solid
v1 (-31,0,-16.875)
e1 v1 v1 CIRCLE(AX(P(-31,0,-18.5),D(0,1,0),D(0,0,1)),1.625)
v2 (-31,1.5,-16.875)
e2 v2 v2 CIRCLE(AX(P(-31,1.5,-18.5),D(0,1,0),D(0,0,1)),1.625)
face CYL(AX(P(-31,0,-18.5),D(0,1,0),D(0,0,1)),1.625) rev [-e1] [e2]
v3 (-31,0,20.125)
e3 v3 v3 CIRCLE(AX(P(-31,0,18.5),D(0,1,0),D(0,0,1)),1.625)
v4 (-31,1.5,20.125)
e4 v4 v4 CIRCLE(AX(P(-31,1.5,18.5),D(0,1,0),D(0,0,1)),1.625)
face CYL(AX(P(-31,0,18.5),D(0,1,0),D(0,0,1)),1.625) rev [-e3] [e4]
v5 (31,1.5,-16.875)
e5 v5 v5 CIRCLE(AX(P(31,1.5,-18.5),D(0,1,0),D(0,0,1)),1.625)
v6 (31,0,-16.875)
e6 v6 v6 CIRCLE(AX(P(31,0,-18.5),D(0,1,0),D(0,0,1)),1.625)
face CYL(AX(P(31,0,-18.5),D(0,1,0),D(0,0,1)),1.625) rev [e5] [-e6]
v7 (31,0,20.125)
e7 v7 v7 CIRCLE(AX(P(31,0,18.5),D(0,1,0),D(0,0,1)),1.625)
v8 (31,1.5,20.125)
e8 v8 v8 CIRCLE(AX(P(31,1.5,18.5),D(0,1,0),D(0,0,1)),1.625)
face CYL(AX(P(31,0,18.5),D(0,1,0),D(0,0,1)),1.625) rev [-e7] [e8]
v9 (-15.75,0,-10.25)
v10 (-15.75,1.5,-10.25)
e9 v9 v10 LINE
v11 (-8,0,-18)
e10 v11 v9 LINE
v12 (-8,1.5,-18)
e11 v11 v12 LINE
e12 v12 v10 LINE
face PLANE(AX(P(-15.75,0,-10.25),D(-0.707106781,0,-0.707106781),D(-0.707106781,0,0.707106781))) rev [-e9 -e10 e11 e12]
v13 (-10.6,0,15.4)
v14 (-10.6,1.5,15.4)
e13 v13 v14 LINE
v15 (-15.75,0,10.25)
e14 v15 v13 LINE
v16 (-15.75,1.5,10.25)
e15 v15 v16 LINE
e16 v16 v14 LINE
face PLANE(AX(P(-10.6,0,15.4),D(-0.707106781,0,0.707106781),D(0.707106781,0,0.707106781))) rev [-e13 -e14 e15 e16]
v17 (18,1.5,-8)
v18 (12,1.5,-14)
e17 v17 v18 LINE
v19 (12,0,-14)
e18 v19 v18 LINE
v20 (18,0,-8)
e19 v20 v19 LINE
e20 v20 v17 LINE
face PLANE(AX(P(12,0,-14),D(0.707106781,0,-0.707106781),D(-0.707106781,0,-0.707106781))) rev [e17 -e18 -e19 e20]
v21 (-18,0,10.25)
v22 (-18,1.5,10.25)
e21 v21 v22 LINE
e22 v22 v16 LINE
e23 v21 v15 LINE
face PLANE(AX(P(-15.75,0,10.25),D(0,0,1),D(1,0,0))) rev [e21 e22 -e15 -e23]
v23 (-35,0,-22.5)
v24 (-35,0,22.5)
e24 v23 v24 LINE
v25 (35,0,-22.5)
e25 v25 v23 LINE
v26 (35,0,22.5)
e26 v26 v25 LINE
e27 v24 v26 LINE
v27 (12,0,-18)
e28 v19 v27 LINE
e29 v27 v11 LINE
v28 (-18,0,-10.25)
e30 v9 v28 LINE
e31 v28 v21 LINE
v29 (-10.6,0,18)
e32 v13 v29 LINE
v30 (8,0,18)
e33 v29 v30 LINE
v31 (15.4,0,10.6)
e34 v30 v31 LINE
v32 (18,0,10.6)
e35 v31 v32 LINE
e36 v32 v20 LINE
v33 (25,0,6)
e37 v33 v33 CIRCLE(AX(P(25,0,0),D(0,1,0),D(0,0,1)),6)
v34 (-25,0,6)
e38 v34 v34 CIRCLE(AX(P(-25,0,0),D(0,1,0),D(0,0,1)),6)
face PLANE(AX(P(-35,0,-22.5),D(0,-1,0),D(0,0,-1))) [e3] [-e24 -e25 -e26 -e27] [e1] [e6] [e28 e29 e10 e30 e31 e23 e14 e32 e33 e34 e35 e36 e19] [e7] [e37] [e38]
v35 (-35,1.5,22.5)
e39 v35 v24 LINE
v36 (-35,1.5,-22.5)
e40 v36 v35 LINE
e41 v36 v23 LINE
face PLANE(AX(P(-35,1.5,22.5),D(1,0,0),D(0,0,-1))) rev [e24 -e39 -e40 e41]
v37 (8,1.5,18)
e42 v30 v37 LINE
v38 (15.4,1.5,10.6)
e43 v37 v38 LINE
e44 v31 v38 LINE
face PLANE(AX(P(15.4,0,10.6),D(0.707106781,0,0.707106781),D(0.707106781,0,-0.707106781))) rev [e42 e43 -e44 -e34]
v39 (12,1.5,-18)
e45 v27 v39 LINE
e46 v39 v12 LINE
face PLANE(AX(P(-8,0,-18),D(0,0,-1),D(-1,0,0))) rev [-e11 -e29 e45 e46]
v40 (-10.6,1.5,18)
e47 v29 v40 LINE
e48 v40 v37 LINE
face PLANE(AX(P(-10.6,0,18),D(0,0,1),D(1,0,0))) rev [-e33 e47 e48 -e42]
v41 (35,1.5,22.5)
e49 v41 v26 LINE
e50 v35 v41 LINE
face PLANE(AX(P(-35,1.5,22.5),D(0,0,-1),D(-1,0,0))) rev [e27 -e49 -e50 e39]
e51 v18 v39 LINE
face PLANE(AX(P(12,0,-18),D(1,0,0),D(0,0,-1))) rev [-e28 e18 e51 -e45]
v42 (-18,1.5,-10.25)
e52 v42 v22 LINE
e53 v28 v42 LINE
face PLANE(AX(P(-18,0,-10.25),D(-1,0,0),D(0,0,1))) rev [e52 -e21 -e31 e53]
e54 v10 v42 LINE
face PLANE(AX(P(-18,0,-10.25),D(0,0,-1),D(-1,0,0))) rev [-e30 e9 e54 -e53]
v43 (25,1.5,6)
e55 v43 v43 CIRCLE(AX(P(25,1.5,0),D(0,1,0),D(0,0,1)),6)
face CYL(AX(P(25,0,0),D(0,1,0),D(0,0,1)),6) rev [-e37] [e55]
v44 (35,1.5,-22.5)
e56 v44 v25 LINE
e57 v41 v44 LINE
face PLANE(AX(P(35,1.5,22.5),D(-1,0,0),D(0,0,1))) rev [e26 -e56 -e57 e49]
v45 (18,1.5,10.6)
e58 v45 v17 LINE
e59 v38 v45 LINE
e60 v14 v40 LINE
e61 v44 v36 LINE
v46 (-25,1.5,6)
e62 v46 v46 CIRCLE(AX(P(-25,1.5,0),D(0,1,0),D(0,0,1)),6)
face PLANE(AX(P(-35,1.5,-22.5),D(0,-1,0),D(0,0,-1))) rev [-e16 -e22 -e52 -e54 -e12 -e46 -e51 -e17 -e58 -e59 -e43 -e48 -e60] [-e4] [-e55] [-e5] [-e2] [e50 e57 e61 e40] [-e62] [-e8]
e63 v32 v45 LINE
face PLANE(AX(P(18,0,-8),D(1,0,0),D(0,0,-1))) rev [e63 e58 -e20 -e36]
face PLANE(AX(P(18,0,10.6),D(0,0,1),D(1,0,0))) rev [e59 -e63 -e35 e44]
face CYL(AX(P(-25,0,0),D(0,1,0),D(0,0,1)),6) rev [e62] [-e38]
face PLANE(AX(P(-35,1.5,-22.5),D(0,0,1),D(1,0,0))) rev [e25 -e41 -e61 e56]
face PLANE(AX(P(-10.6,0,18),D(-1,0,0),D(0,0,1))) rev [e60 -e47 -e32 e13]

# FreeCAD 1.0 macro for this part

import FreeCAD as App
import Part
import Sketcher
Q = App.Units.Quantity

doc = App.newDocument("Part")
body = doc.addObject("PartDesign::Body", "Body")

sketch1 = doc.addObject("Sketcher::SketchObject", "Sketch")
body.addObject(sketch1)
sketch1.AttachmentSupport = (doc.XZ_Plane, [""])
sketch1.MapMode = "FlatFace"
sketch1.addGeometry(Part.LineSegment(App.Vector(-35, -22, 0), App.Vector(-35, 22, 0)), False)
sketch1.addGeometry(Part.LineSegment(App.Vector(-35, 22, 0), App.Vector(35, 22, 0)), False)
sketch1.addGeometry(Part.LineSegment(App.Vector(35, 22, 0), App.Vector(35, -22, 0)), False)
sketch1.addGeometry(Part.LineSegment(App.Vector(35, -22, 0), App.Vector(-35, -22, 0)), False)
sketch1.addConstraint(Sketcher.Constraint("Coincident", 0, 2, 1, 1))
sketch1.addConstraint(Sketcher.Constraint("Coincident", 1, 2, 2, 1))
sketch1.addConstraint(Sketcher.Constraint("Coincident", 2, 2, 3, 1))
sketch1.addConstraint(Sketcher.Constraint("Coincident", 3, 2, 0, 1))
sketch1.addConstraint(Sketcher.Constraint("Vertical", 0))
sketch1.addConstraint(Sketcher.Constraint("Horizontal", 1))
sketch1.addConstraint(Sketcher.Constraint("Vertical", 2))
sketch1.addConstraint(Sketcher.Constraint("Horizontal", 3))
sketch1.addConstraint(Sketcher.Constraint("Symmetric", 0, 2, 2, 2, -1, 1))
sketch1.addConstraint(Sketcher.Constraint("DistanceX", 1, 1, 1, 2, Q("70 mm")))
sketch1.addConstraint(Sketcher.Constraint("DistanceY", 0, 1, 0, 2, Q("45 mm")))
pad1 = doc.addObject("PartDesign::Pad", "Pad")
body.addObject(pad1)
pad1.Profile = sketch1
pad1.Length = 1.5
pad1.Reversed = True

sketch2 = doc.addObject("Sketcher::SketchObject", "Sketch001")
body.addObject(sketch2)
sketch2.AttachmentSupport = (doc.XZ_Plane, [""])
sketch2.MapMode = "FlatFace"
sketch2.AttachmentOffset = App.Placement(App.Vector(0, 0, -1.5), App.Rotation())
sketch2.addGeometry(Part.Circle(App.Vector(-31, 18.5, 0), App.Vector(0, 0, 1), 1.6), False)
sketch2.addGeometry(Part.Circle(App.Vector(-31, -18.5, 0), App.Vector(0, 0, 1), 1.6), False)
sketch2.addGeometry(Part.Circle(App.Vector(31, -18.5, 0), App.Vector(0, 0, 1), 1.6), False)
sketch2.addGeometry(Part.Circle(App.Vector(31, 18.5, 0), App.Vector(0, 0, 1), 1.6), False)
sketch2.addGeometry(Part.Circle(App.Vector(-25, 0, 0), App.Vector(0, 0, 1), 6), False)
sketch2.addGeometry(Part.Circle(App.Vector(25, 0, 0), App.Vector(0, 0, 1), 6), False)
sketch2.addConstraint(Sketcher.Constraint("Equal", 0, 1))
sketch2.addConstraint(Sketcher.Constraint("Equal", 1, 2))
sketch2.addConstraint(Sketcher.Constraint("Equal", 2, 3))
sketch2.addConstraint(Sketcher.Constraint("Equal", 4, 5))
sketch2.addConstraint(Sketcher.Constraint("Symmetric", 0, 3, 2, 3, -1, 1))
sketch2.addConstraint(Sketcher.Constraint("Symmetric", 1, 3, 3, 3, -1, 1))
sketch2.addConstraint(Sketcher.Constraint("Symmetric", 4, 3, 5, 3, -1, 1))
sketch2.addConstraint(Sketcher.Constraint("Symmetric", 1, 3, 2, 3, -2))
sketch2.addConstraint(Sketcher.Constraint("PointOnObject", 4, 3, -1))
sketch2.addConstraint(Sketcher.Constraint("Diameter", 4, Q("12 mm")))
sketch2.addConstraint(Sketcher.Constraint("Diameter", 0, Q("3.25 mm")))
sketch2.addConstraint(Sketcher.Constraint("DistanceX", 0, 3, -1, 1, Q("31 mm")))
sketch2.addConstraint(Sketcher.Constraint("DistanceX", 4, 3, -1, 1, Q("25 mm")))
sketch2.addConstraint(Sketcher.Constraint("DistanceY", 1, 3, 0, 3, Q("37 mm")))
pocket1 = doc.addObject("PartDesign::Pocket", "Pocket")
body.addObject(pocket1)
pocket1.Profile = sketch2
pocket1.Type = "ThroughAll"
pocket1.Reversed = True

sketch3 = doc.addObject("Sketcher::SketchObject", "Sketch002")
body.addObject(sketch3)
sketch3.AttachmentSupport = (doc.XZ_Plane, [""])
sketch3.MapMode = "FlatFace"
sketch3.AttachmentOffset = App.Placement(App.Vector(0, 0, -1.5), App.Rotation())
sketch3.addGeometry(Part.LineSegment(App.Vector(-10.6, 15.4, 0), App.Vector(-10.6, 18, 0)), False)
sketch3.addGeometry(Part.LineSegment(App.Vector(-10.6, 18, 0), App.Vector(8, 18, 0)), False)
sketch3.addGeometry(Part.LineSegment(App.Vector(8, 18, 0), App.Vector(15.4, 10.6, 0)), False)
sketch3.addGeometry(Part.LineSegment(App.Vector(15.4, 10.6, 0), App.Vector(18, 10.6, 0)), False)
sketch3.addGeometry(Part.LineSegment(App.Vector(18, 10.6, 0), App.Vector(18, -8, 0)), False)
sketch3.addGeometry(Part.LineSegment(App.Vector(18, -8, 0), App.Vector(12, -14, 0)), False)
sketch3.addGeometry(Part.LineSegment(App.Vector(12, -14, 0), App.Vector(12, -18, 0)), False)
sketch3.addGeometry(Part.LineSegment(App.Vector(12, -18, 0), App.Vector(-8, -18, 0)), False)
sketch3.addGeometry(Part.LineSegment(App.Vector(-8, -18, 0), App.Vector(-15.8, -10.2, 0)), False)
sketch3.addGeometry(Part.LineSegment(App.Vector(-15.8, -10.2, 0), App.Vector(-18, -10.2, 0)), False)
sketch3.addGeometry(Part.LineSegment(App.Vector(-18, -10.2, 0), App.Vector(-18, 10.2, 0)), False)
sketch3.addGeometry(Part.LineSegment(App.Vector(-18, 10.2, 0), App.Vector(-15.8, 10.2, 0)), False)
sketch3.addGeometry(Part.LineSegment(App.Vector(-15.8, 10.2, 0), App.Vector(-10.6, 15.4, 0)), False)
sketch3.addConstraint(Sketcher.Constraint("Coincident", 0, 2, 1, 1))
sketch3.addConstraint(Sketcher.Constraint("Coincident", 1, 2, 2, 1))
sketch3.addConstraint(Sketcher.Constraint("Coincident", 2, 2, 3, 1))
sketch3.addConstraint(Sketcher.Constraint("Coincident", 3, 2, 4, 1))
sketch3.addConstraint(Sketcher.Constraint("Coincident", 4, 2, 5, 1))
sketch3.addConstraint(Sketcher.Constraint("Coincident", 5, 2, 6, 1))
sketch3.addConstraint(Sketcher.Constraint("Coincident", 6, 2, 7, 1))
sketch3.addConstraint(Sketcher.Constraint("Coincident", 7, 2, 8, 1))
sketch3.addConstraint(Sketcher.Constraint("Coincident", 8, 2, 9, 1))
sketch3.addConstraint(Sketcher.Constraint("Coincident", 9, 2, 10, 1))
sketch3.addConstraint(Sketcher.Constraint("Coincident", 10, 2, 11, 1))
sketch3.addConstraint(Sketcher.Constraint("Coincident", 11, 2, 12, 1))
sketch3.addConstraint(Sketcher.Constraint("Coincident", 12, 2, 0, 1))
sketch3.addConstraint(Sketcher.Constraint("Vertical", 0))
sketch3.addConstraint(Sketcher.Constraint("Horizontal", 1))
sketch3.addConstraint(Sketcher.Constraint("Horizontal", 3))
sketch3.addConstraint(Sketcher.Constraint("Vertical", 4))
sketch3.addConstraint(Sketcher.Constraint("Vertical", 6))
sketch3.addConstraint(Sketcher.Constraint("Horizontal", 7))
sketch3.addConstraint(Sketcher.Constraint("Horizontal", 9))
sketch3.addConstraint(Sketcher.Constraint("Vertical", 10))
sketch3.addConstraint(Sketcher.Constraint("Horizontal", 11))
sketch3.addConstraint(Sketcher.Constraint("Symmetric", 1, 2, 7, 2, -1, 1))
sketch3.addConstraint(Sketcher.Constraint("Symmetric", 8, 2, 11, 2, -1))
sketch3.addConstraint(Sketcher.Constraint("Perpendicular", 2, 5))
sketch3.addConstraint(Sketcher.Constraint("Perpendicular", 5, 8))
sketch3.addConstraint(Sketcher.Constraint("Perpendicular", 8, 12))
sketch3.addConstraint(Sketcher.Constraint("Equal", 3, 0))
sketch3.addConstraint(Sketcher.Constraint("Equal", 1, 4))
sketch3.addConstraint(Sketcher.Constraint("DistanceX", 7, 2, 7, 1, Q("20 mm")))
sketch3.addConstraint(Sketcher.Constraint("DistanceY", 6, 2, 6, 1, Q("4 mm")))
sketch3.addConstraint(Sketcher.Constraint("Angle", 2, Q("-45 deg")))
sketch3.addConstraint(Sketcher.Constraint("DistanceX", 1, 1, 1, 2, Q("18.6 mm")))
sketch3.addConstraint(Sketcher.Constraint("DistanceX", 3, 1, 3, 2, Q("2.6 mm")))
sketch3.addConstraint(Sketcher.Constraint("DistanceY", 10, 1, 10, 2, Q("20.5 mm")))
sketch3.addConstraint(Sketcher.Constraint("DistanceY", -1, 1, 0, 2, Q("18 mm")))
sketch3.addConstraint(Sketcher.Constraint("DistanceX", 9, 2, -1, 1, Q("18 mm")))
pocket2 = doc.addObject("PartDesign::Pocket", "Pocket001")
body.addObject(pocket2)
pocket2.Profile = sketch3
pocket2.Type = "ThroughAll"
pocket2.Reversed = True

doc.recompute()
